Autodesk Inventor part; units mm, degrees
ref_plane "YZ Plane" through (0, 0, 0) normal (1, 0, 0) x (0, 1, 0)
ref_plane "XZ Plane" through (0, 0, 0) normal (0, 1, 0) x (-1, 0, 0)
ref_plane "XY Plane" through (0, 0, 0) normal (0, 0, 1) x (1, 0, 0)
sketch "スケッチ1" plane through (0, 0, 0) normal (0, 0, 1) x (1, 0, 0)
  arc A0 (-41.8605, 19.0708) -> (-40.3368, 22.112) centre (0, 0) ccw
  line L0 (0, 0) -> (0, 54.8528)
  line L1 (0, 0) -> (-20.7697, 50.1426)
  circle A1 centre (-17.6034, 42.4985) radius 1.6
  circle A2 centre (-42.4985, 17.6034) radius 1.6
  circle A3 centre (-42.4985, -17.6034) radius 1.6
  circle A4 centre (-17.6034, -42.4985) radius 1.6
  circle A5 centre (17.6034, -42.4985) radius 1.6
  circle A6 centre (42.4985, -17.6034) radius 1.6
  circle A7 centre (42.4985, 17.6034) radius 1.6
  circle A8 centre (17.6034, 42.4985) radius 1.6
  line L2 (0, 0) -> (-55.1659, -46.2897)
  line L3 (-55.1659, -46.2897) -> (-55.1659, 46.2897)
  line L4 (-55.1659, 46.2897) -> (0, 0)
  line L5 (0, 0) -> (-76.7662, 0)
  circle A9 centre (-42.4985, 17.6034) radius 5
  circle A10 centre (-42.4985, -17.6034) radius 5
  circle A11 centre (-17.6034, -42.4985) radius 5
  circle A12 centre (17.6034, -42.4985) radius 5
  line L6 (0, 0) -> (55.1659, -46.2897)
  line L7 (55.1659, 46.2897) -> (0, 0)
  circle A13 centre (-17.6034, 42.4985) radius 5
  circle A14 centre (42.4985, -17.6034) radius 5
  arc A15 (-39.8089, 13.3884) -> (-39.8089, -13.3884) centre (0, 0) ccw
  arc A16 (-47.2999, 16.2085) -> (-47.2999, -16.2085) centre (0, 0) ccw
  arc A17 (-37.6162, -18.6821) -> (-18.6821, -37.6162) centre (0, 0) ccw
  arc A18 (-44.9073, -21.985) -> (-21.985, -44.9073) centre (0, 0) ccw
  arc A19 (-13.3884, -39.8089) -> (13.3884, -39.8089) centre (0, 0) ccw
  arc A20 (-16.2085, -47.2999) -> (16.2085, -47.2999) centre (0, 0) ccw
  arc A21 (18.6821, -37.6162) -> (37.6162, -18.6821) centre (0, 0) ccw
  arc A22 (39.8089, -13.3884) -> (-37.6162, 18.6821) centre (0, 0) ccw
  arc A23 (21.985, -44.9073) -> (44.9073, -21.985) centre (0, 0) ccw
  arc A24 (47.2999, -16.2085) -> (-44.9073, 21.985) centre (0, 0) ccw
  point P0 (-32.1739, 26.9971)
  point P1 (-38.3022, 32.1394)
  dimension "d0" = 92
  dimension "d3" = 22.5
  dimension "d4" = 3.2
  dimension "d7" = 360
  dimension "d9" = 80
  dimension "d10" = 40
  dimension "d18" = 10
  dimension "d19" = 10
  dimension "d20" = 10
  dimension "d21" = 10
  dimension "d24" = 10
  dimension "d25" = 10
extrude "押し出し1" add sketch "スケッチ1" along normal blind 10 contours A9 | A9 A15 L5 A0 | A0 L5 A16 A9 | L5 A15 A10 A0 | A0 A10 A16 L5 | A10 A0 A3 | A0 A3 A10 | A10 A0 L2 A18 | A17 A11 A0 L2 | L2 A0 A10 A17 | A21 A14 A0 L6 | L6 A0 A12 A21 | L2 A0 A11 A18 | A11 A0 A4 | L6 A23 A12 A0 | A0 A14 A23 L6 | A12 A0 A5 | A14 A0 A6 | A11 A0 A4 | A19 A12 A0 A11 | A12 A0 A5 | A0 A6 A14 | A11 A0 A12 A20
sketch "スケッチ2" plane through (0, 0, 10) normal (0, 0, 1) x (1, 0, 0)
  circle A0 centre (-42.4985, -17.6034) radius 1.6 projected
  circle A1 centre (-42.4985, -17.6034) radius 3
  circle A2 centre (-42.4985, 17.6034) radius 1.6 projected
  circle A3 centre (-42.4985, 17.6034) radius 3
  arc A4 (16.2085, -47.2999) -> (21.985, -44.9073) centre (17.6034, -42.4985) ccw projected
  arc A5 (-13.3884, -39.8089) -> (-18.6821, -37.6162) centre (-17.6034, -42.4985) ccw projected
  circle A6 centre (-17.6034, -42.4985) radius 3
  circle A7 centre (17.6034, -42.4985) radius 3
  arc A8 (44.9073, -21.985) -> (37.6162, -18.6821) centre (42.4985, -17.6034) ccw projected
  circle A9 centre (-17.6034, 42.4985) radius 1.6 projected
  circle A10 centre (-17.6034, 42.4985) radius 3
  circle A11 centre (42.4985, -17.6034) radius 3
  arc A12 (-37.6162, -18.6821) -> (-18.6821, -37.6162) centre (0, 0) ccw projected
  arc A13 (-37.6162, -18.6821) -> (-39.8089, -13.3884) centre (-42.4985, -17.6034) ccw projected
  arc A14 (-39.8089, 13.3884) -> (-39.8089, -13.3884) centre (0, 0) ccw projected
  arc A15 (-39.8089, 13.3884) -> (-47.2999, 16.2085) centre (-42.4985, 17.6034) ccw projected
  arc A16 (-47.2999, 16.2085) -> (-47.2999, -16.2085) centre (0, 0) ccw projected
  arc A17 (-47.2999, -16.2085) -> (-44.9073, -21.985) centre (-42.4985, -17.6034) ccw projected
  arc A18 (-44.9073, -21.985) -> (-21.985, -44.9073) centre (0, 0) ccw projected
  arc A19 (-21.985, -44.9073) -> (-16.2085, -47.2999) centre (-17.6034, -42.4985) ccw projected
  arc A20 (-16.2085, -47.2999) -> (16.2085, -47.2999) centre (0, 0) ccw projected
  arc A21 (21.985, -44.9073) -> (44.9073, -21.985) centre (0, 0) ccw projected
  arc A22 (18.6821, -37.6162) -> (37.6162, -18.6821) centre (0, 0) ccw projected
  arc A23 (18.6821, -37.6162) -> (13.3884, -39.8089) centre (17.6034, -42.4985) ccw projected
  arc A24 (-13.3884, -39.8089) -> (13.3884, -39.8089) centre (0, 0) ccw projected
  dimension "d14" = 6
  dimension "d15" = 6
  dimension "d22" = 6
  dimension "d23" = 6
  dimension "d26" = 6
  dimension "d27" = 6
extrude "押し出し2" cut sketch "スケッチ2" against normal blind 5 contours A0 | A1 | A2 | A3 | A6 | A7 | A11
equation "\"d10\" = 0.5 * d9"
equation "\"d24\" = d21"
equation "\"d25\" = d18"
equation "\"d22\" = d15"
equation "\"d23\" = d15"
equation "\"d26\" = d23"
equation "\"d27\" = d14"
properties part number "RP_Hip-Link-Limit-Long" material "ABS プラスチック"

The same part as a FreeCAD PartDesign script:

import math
import FreeCAD as App
import Part
import Sketcher

V = App.Vector
Q = App.Units.Quantity

doc = App.newDocument("Part")
body = doc.addObject("PartDesign::Body", "Body")

# Sketch on XY plane
sketch1 = doc.addObject("Sketcher::SketchObject", "Sketch")
body.addObject(sketch1)
sketch1.AttachmentSupport = (doc.XY_Plane, [""])
sketch1.MapMode = "FlatFace"
sketch1.addGeometry([
    Part.ArcOfCircle(Part.Circle(V(0, 0, 0), V(0, 0, 1), 49.99996), math.radians(161.084687), math.radians(198.915313)),  # 0
    Part.ArcOfCircle(Part.Circle(V(-42.4985, -17.6034, 0), V(0, 0, 1), 5), math.radians(163.800392), math.radians(241.20005)),  # 1
    Part.ArcOfCircle(Part.Circle(V(0, 0, 0), V(0, 0, 1), 50.000058), math.radians(-153.915291), math.radians(-116.084709)),  # 2
    Part.ArcOfCircle(Part.Circle(V(-17.6034, -42.4985, 0), V(0, 0, 1), 5), math.radians(-151.20005), math.radians(-73.800392)),  # 3
    Part.ArcOfCircle(Part.Circle(V(0, 0, 0), V(0, 0, 1), 49.99996), math.radians(-108.915313), math.radians(-71.084687)),  # 4
    Part.ArcOfCircle(Part.Circle(V(17.6034, -42.4985, 0), V(0, 0, 1), 5), math.radians(-106.199608), math.radians(-28.79995)),  # 5
    Part.ArcOfCircle(Part.Circle(V(0, 0, 0), V(0, 0, 1), 50.000058), math.radians(-63.915291), math.radians(-26.084709)),  # 6
    Part.ArcOfCircle(Part.Circle(V(42.4985, -17.6034, 0), V(0, 0, 1), 5), math.radians(-61.20005), math.radians(192.458832)),  # 7
    Part.ArcOfCircle(Part.Circle(V(0, 0, 0), V(0, 0, 1), 41.999992), math.radians(-63.58869), math.radians(-26.41131)),  # 8
    Part.ArcOfCircle(Part.Circle(V(17.6034, -42.4985, 0), V(0, 0, 1), 5), math.radians(77.541168), math.radians(147.45797)),  # 9
    Part.ArcOfCircle(Part.Circle(V(0, 0, 0), V(0, 0, 1), 41.999973), math.radians(-108.588655), math.radians(-71.411345)),  # 10
    Part.ArcOfCircle(Part.Circle(V(-17.6034, -42.4985, 0), V(0, 0, 1), 5), math.radians(32.54203), math.radians(102.458832)),  # 11
    Part.ArcOfCircle(Part.Circle(V(0, 0, 0), V(0, 0, 1), 41.999992), math.radians(-153.58869), math.radians(-116.41131)),  # 12
    Part.ArcOfCircle(Part.Circle(V(-42.4985, -17.6034, 0), V(0, 0, 1), 5), math.radians(-12.458832), math.radians(57.45797)),  # 13
    Part.ArcOfCircle(Part.Circle(V(0, 0, 0), V(0, 0, 1), 41.999973), math.radians(161.411345), math.radians(198.588655)),  # 14
    Part.ArcOfCircle(Part.Circle(V(-42.4985, 17.6034, 0), V(0, 0, 1), 5), math.radians(-57.45797), math.radians(196.199608)),  # 15
    Part.Circle(V(-42.4985, 17.6034, 0), V(0, 0, 1), 1.6),  # 16
    Part.Circle(V(-42.4985, -17.6034, 0), V(0, 0, 1), 1.6),  # 17
    Part.Circle(V(-17.6034, -42.4985, 0), V(0, 0, 1), 1.6),  # 18
    Part.Circle(V(17.6034, -42.4985, 0), V(0, 0, 1), 1.6),  # 19
    Part.Circle(V(42.4985, -17.6034, 0), V(0, 0, 1), 1.6),  # 20
], False)
sketch1.addConstraint([
    Sketcher.Constraint("Coincident", 0, 2, 1, 1),
    Sketcher.Constraint("Coincident", 1, 2, 2, 1),
    Sketcher.Constraint("Coincident", 2, 2, 3, 1),
    Sketcher.Constraint("Coincident", 3, 2, 4, 1),
    Sketcher.Constraint("Coincident", 4, 2, 5, 1),
    Sketcher.Constraint("Coincident", 5, 2, 6, 1),
    Sketcher.Constraint("Coincident", 6, 2, 7, 1),
    Sketcher.Constraint("Coincident", 7, 2, 8, 2),
    Sketcher.Constraint("Coincident", 8, 1, 9, 1),
    Sketcher.Constraint("Coincident", 9, 2, 10, 2),
    Sketcher.Constraint("Coincident", 10, 1, 11, 1),
    Sketcher.Constraint("Coincident", 11, 2, 12, 2),
    Sketcher.Constraint("Coincident", 12, 1, 13, 1),
    Sketcher.Constraint("Coincident", 13, 2, 14, 2),
    Sketcher.Constraint("Coincident", 14, 1, 15, 1),
    Sketcher.Constraint("Coincident", 15, 2, 0, 1),
    Sketcher.Constraint("Coincident", 0, 3, -1, 1),
    Sketcher.Constraint("Coincident", 2, 3, -1, 1),
    Sketcher.Constraint("Coincident", 4, 3, -1, 1),
    Sketcher.Constraint("Coincident", 6, 3, -1, 1),
    Sketcher.Constraint("Coincident", 8, 3, -1, 1),
    Sketcher.Constraint("Coincident", 10, 3, -1, 1),
    Sketcher.Constraint("Coincident", 12, 3, -1, 1),
    Sketcher.Constraint("Coincident", 14, 3, -1, 1),
    Sketcher.Constraint("Coincident", 9, 3, 5, 3),
    Sketcher.Constraint("Coincident", 11, 3, 3, 3),
    Sketcher.Constraint("Coincident", 13, 3, 1, 3),
    Sketcher.Constraint("Coincident", 16, 3, 15, 3),
    Sketcher.Constraint("Coincident", 17, 3, 1, 3),
    Sketcher.Constraint("Coincident", 18, 3, 3, 3),
    Sketcher.Constraint("Coincident", 19, 3, 5, 3),
    Sketcher.Constraint("Coincident", 20, 3, 7, 3),
    Sketcher.Constraint("Equal", 0, 2),
    Sketcher.Constraint("Equal", 1, 3),
    Sketcher.Constraint("Equal", 2, 4),
    Sketcher.Constraint("Equal", 3, 5),
    Sketcher.Constraint("Equal", 4, 6),
    Sketcher.Constraint("Equal", 5, 7),
    Sketcher.Constraint("Equal", 7, 9),
    Sketcher.Constraint("Equal", 8, 10),
    Sketcher.Constraint("Equal", 9, 11),
    Sketcher.Constraint("Equal", 10, 12),
    Sketcher.Constraint("Equal", 11, 13),
    Sketcher.Constraint("Equal", 12, 14),
    Sketcher.Constraint("Equal", 13, 15),
    Sketcher.Constraint("Equal", 16, 17),
    Sketcher.Constraint("Equal", 17, 18),
    Sketcher.Constraint("Equal", 18, 19),
    Sketcher.Constraint("Equal", 19, 20),
    Sketcher.Constraint("Symmetric", 7, 3, 15, 3, -1, 1),
    Sketcher.Constraint("Symmetric", 3, 3, 5, 3, -2),
    Sketcher.Constraint("Symmetric", 1, 3, 7, 3, -2),
    Sketcher.Constraint("Radius", 1, Q("5 mm")),
    Sketcher.Constraint("Diameter", 16, Q("3.2 mm")),
    Sketcher.Constraint("Radius", 0, Q("50 mm")),
    Sketcher.Constraint("Radius", 8, Q("42 mm")),
    Sketcher.Constraint("DistanceX", 0, 2, -1, 1, Q("47.3 mm")),
    Sketcher.Constraint("DistanceY", 3, 2, -1, 1, Q("47.3 mm")),
    Sketcher.Constraint("DistanceX", 9, 2, 4, 2, Q("2.82 mm")),
    Sketcher.Constraint("DistanceY", 0, 2, 13, 2, Q("2.82 mm")),
])
pad1 = doc.addObject("PartDesign::Pad", "Pad")
body.addObject(pad1)
pad1.Profile = sketch1
pad1.Length = 10

# Sketch on XY plane
sketch2 = doc.addObject("Sketcher::SketchObject", "Sketch001")
body.addObject(sketch2)
sketch2.AttachmentSupport = (doc.XY_Plane, [""])
sketch2.MapMode = "FlatFace"
sketch2.AttachmentOffset = App.Placement(V(0, 0, 10), App.Rotation())
sketch2.addGeometry([
    Part.Circle(V(-42.4985, -17.6034, 0), V(0, 0, 1), 3),  # 0
    Part.Circle(V(-42.4985, 17.6034, 0), V(0, 0, 1), 3),  # 1
    Part.Circle(V(-17.6034, -42.4985, 0), V(0, 0, 1), 3),  # 2
    Part.Circle(V(17.6034, -42.4985, 0), V(0, 0, 1), 3),  # 3
    Part.Circle(V(42.4985, -17.6034, 0), V(0, 0, 1), 3),  # 4
], False)
sketch2.addConstraint([
    Sketcher.Constraint("Equal", 0, 1),
    Sketcher.Constraint("Equal", 1, 2),
    Sketcher.Constraint("Equal", 2, 3),
    Sketcher.Constraint("Equal", 3, 4),
    Sketcher.Constraint("Symmetric", 1, 3, 4, 3, -1, 1),
    Sketcher.Constraint("Symmetric", 2, 3, 3, 3, -2),
    Sketcher.Constraint("Symmetric", 0, 3, 4, 3, -2),
    Sketcher.Constraint("Diameter", 0, Q("6 mm")),
    Sketcher.Constraint("DistanceX", 0, 3, 2, 3, Q("24.895 mm")),
    Sketcher.Constraint("DistanceY", 2, 3, 0, 3, Q("24.895 mm")),
    Sketcher.Constraint("DistanceY", 2, 3, 1, 3, Q("60.102 mm")),
    Sketcher.Constraint("DistanceX", 0, 3, 3, 3, Q("60.102 mm")),
])
pocket1 = doc.addObject("PartDesign::Pocket", "Pocket")
body.addObject(pocket1)
pocket1.Profile = sketch2
pocket1.Length = 5

doc.recompute()
